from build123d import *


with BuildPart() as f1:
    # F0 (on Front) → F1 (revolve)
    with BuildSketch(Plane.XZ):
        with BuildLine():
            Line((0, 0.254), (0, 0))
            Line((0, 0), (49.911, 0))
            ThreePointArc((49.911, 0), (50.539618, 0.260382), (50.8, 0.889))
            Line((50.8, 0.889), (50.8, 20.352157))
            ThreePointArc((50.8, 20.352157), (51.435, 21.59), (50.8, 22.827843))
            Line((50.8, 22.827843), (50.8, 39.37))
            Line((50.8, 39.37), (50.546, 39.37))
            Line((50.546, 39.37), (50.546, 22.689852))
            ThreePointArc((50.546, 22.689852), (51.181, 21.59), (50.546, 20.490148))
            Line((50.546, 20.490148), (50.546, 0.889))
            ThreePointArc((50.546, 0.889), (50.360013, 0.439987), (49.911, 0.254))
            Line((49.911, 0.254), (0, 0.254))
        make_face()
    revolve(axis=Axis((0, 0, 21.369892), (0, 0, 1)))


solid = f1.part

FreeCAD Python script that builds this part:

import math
import FreeCAD as App
import Part
import Sketcher
from FreeCAD import Vector
Q = App.Units.Quantity

doc = App.newDocument("Part")
params = doc.addObject("Spreadsheet::Sheet", "Params")
for row, (alias, value) in enumerate([
    ("sketch1_radius", "0.06 in"),
    ("sketch1_radius2", "0.05 in"),
    ("sketch1_radius3", "0.035 in"),
    ("sketch1_radius4", "0.025 in"),
    ("revolution_angle", "360 deg"),
], start=1):
    params.set(f"A{row}", alias)
    params.set(f"B{row}", "=" + value)
    params.setAlias(f"B{row}", alias)

body = doc.addObject("PartDesign::Body", "Body")

sketch1 = body.newObject("Sketcher::SketchObject", "Sketch")
sketch1.AttachmentSupport = (doc.getObject("XZ_Plane"), [""])
sketch1.MapMode = "FlatFace"
sketch1.addGeometry(Part.LineSegment(Vector(0, 0.25, 0), Vector(0, 0, 0)), False)
sketch1.addGeometry(Part.LineSegment(Vector(0, 0, 0), Vector(49.91, 0, 0)), False)
sketch1.addGeometry(Part.ArcOfCircle(Part.Circle(Vector(49.91, 0.89, 0), Vector(0, 0, 1), 0.89), math.radians(-90), math.radians(0)), False)
sketch1.addGeometry(Part.LineSegment(Vector(50.8, 0.89, 0), Vector(50.8, 20.35, 0)), False)
sketch1.addGeometry(Part.ArcOfCircle(Part.Circle(Vector(49.91, 21.59, 0), Vector(0, 0, 1), 1.52), math.radians(-54), math.radians(54)), False)
sketch1.addGeometry(Part.LineSegment(Vector(50.8, 22.83, 0), Vector(50.8, 39.37, 0)), False)
sketch1.addGeometry(Part.LineSegment(Vector(50.8, 39.37, 0), Vector(50.55, 39.37, 0)), False)
sketch1.addGeometry(Part.LineSegment(Vector(50.55, 39.37, 0), Vector(50.55, 22.69, 0)), False)
sketch1.addGeometry(Part.ArcOfCircle(Part.Circle(Vector(49.91, 21.59, 0), Vector(0, 0, 1), 1.27), math.radians(-60), math.radians(60)), False)
sketch1.addGeometry(Part.LineSegment(Vector(50.55, 20.49, 0), Vector(50.55, 0.89, 0)), False)
sketch1.addGeometry(Part.ArcOfCircle(Part.Circle(Vector(49.91, 0.89, 0), Vector(0, 0, 1), 0.63), math.radians(-90), math.radians(0)), False)
sketch1.addGeometry(Part.LineSegment(Vector(49.91, 0.25, 0), Vector(0, 0.25, 0)), False)
sketch1.addConstraint(Sketcher.Constraint("Coincident", 0, 2, 1, 1))
sketch1.addConstraint(Sketcher.Constraint("Tangent", 1, 2, 2, 1))
sketch1.addConstraint(Sketcher.Constraint("Tangent", 2, 2, 3, 1))
sketch1.addConstraint(Sketcher.Constraint("Coincident", 3, 2, 4, 1))
sketch1.addConstraint(Sketcher.Constraint("Coincident", 4, 2, 5, 1))
sketch1.addConstraint(Sketcher.Constraint("Coincident", 5, 2, 6, 1))
sketch1.addConstraint(Sketcher.Constraint("Coincident", 6, 2, 7, 1))
sketch1.addConstraint(Sketcher.Constraint("Coincident", 7, 2, 8, 2))
sketch1.addConstraint(Sketcher.Constraint("Coincident", 8, 1, 9, 1))
sketch1.addConstraint(Sketcher.Constraint("Tangent", 9, 2, 10, 2))
sketch1.addConstraint(Sketcher.Constraint("Tangent", 10, 1, 11, 1))
sketch1.addConstraint(Sketcher.Constraint("Coincident", 11, 2, 0, 1))
sketch1.addConstraint(Sketcher.Constraint("Vertical", 0))
sketch1.addConstraint(Sketcher.Constraint("Horizontal", 1))
sketch1.addConstraint(Sketcher.Constraint("Vertical", 3))
sketch1.addConstraint(Sketcher.Constraint("Vertical", 5))
sketch1.addConstraint(Sketcher.Constraint("Horizontal", 6))
sketch1.addConstraint(Sketcher.Constraint("Vertical", 7))
sketch1.addConstraint(Sketcher.Constraint("Vertical", 9))
sketch1.addConstraint(Sketcher.Constraint("Horizontal", 11))
sketch1.addConstraint(Sketcher.Constraint("Coincident", 0, 2, -1, 1))
sketch1.addConstraint(Sketcher.Constraint("Coincident", 8, 3, 4, 3))
sketch1.addConstraint(Sketcher.Constraint("Coincident", 10, 3, 2, 3))
sketch1.addConstraint(Sketcher.Constraint("Vertical", 2, 3, 4, 3))
sketch1.addConstraint(Sketcher.Constraint("Vertical", 3, 2, 4, 2))
sketch1.addConstraint(Sketcher.Constraint("Vertical", 7, 2, 8, 1))
sketch1.addConstraint(Sketcher.Constraint("Radius", 4, Q("0.06 in")))
sketch1.addConstraint(Sketcher.Constraint("Radius", 8, Q("0.05 in")))
sketch1.addConstraint(Sketcher.Constraint("DistanceX", -1, 1, 2, 2, Q("2 in")))
sketch1.addConstraint(Sketcher.Constraint("Radius", 2, Q("0.035 in")))
sketch1.addConstraint(Sketcher.Constraint("Radius", 10, Q("0.025 in")))
sketch1.addConstraint(Sketcher.Constraint("DistanceY", 8, 3, 5, 2, Q("0.7 in")))
sketch1.addConstraint(Sketcher.Constraint("DistanceY", -1, 1, 4, 3, Q("0.85 in")))
sketch1.setExpression("Constraints[26]", "Params.sketch1_radius")
sketch1.setExpression("Constraints[27]", "Params.sketch1_radius2")
sketch1.setExpression("Constraints[29]", "Params.sketch1_radius3")
sketch1.setExpression("Constraints[30]", "Params.sketch1_radius4")
revolution = body.newObject("PartDesign::Revolution", "Revolution")
revolution.Profile = sketch1
revolution.ReferenceAxis = (sketch1, ["V_Axis"])
revolution.setExpression("Angle", "Params.revolution_angle")

doc.recompute()
